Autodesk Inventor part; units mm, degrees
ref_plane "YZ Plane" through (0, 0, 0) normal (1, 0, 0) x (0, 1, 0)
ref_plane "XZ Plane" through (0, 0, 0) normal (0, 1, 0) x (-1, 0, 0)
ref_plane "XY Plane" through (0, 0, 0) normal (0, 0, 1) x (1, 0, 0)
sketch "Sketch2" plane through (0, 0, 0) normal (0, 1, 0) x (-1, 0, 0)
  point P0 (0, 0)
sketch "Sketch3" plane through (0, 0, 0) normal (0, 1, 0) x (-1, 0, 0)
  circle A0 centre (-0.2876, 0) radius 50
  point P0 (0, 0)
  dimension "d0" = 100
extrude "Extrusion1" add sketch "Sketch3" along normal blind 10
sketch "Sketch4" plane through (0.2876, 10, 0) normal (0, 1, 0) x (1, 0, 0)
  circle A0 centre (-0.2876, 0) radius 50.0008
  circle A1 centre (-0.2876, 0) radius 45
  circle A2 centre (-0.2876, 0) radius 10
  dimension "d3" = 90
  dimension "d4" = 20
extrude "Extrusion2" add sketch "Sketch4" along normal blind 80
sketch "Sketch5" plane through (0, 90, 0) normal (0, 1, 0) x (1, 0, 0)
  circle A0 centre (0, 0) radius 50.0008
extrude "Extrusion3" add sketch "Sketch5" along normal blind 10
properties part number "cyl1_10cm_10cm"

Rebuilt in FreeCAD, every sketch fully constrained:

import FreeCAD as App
import Part
import Sketcher
Q = App.Units.Quantity

doc = App.newDocument("Part")
body = doc.addObject("PartDesign::Body", "Body")

# Sketch on XZ plane
sketch1 = body.newObject("Sketcher::SketchObject", "Sketch")
sketch1.AttachmentSupport = (doc.getObject("XZ_Plane"), [""])
sketch1.MapMode = "FlatFace"
sketch1.addGeometry(Part.Circle(App.Vector(0.2876, 0, 0), App.Vector(0, 0, 1), 50), False)
sketch1.addConstraint([
    Sketcher.Constraint("PointOnObject", 0, 3, -1),
    Sketcher.Constraint("Diameter", 0, Q("3.937 in")),
    Sketcher.Constraint("DistanceX", -1, 1, 0, 3, Q("0.2876 mm")),
])
pad1 = body.newObject("PartDesign::Pad", "Pad")
pad1.Profile = sketch1
pad1.Length = Q("0.3937008 in")
pad1.Reversed = True

# Sketch on XZ plane
sketch2 = body.newObject("Sketcher::SketchObject", "Sketch001")
sketch2.AttachmentSupport = (doc.getObject("XZ_Plane"), [""])
sketch2.MapMode = "FlatFace"
sketch2.AttachmentOffset = App.Placement(App.Vector(0, 0, -0.3937008 * 25.4), App.Rotation())
sketch2.addGeometry([
    Part.Circle(App.Vector(0, 0, 0), App.Vector(0, 0, 1), 50.0008),
    Part.Circle(App.Vector(0, 0, 0), App.Vector(0, 0, 1), 45),
    Part.Circle(App.Vector(0, 0, 0), App.Vector(0, 0, 1), 10),
], False)
sketch2.addConstraint([
    Sketcher.Constraint("Coincident", 0, 3, -1, 1),
    Sketcher.Constraint("Coincident", 1, 3, -1, 1),
    Sketcher.Constraint("Coincident", 2, 3, -1, 1),
    Sketcher.Constraint("Diameter", 1, Q("3.5433 in")),
    Sketcher.Constraint("Diameter", 2, Q("0.7874 in")),
    Sketcher.Constraint("Diameter", 0, Q("100.0016 mm")),
])
pad2 = body.newObject("PartDesign::Pad", "Pad001")
pad2.Profile = sketch2
pad2.Length = Q("3.1496063 in")
pad2.Reversed = True

# Sketch on XZ plane
sketch3 = body.newObject("Sketcher::SketchObject", "Sketch002")
sketch3.AttachmentSupport = (doc.getObject("XZ_Plane"), [""])
sketch3.MapMode = "FlatFace"
sketch3.AttachmentOffset = App.Placement(App.Vector(0, 0, -3.5433071 * 25.4), App.Rotation())
sketch3.addGeometry(Part.Circle(App.Vector(0, 0, 0), App.Vector(0, 0, 1), 50.0008), False)
sketch3.addConstraint([
    Sketcher.Constraint("Coincident", 0, 3, -1, 1),
    Sketcher.Constraint("Diameter", 0, Q("100.0016 mm")),
])
pad3 = body.newObject("PartDesign::Pad", "Pad002")
pad3.Profile = sketch3
pad3.Length = Q("0.3937008 in")
pad3.Reversed = True

doc.recompute()
